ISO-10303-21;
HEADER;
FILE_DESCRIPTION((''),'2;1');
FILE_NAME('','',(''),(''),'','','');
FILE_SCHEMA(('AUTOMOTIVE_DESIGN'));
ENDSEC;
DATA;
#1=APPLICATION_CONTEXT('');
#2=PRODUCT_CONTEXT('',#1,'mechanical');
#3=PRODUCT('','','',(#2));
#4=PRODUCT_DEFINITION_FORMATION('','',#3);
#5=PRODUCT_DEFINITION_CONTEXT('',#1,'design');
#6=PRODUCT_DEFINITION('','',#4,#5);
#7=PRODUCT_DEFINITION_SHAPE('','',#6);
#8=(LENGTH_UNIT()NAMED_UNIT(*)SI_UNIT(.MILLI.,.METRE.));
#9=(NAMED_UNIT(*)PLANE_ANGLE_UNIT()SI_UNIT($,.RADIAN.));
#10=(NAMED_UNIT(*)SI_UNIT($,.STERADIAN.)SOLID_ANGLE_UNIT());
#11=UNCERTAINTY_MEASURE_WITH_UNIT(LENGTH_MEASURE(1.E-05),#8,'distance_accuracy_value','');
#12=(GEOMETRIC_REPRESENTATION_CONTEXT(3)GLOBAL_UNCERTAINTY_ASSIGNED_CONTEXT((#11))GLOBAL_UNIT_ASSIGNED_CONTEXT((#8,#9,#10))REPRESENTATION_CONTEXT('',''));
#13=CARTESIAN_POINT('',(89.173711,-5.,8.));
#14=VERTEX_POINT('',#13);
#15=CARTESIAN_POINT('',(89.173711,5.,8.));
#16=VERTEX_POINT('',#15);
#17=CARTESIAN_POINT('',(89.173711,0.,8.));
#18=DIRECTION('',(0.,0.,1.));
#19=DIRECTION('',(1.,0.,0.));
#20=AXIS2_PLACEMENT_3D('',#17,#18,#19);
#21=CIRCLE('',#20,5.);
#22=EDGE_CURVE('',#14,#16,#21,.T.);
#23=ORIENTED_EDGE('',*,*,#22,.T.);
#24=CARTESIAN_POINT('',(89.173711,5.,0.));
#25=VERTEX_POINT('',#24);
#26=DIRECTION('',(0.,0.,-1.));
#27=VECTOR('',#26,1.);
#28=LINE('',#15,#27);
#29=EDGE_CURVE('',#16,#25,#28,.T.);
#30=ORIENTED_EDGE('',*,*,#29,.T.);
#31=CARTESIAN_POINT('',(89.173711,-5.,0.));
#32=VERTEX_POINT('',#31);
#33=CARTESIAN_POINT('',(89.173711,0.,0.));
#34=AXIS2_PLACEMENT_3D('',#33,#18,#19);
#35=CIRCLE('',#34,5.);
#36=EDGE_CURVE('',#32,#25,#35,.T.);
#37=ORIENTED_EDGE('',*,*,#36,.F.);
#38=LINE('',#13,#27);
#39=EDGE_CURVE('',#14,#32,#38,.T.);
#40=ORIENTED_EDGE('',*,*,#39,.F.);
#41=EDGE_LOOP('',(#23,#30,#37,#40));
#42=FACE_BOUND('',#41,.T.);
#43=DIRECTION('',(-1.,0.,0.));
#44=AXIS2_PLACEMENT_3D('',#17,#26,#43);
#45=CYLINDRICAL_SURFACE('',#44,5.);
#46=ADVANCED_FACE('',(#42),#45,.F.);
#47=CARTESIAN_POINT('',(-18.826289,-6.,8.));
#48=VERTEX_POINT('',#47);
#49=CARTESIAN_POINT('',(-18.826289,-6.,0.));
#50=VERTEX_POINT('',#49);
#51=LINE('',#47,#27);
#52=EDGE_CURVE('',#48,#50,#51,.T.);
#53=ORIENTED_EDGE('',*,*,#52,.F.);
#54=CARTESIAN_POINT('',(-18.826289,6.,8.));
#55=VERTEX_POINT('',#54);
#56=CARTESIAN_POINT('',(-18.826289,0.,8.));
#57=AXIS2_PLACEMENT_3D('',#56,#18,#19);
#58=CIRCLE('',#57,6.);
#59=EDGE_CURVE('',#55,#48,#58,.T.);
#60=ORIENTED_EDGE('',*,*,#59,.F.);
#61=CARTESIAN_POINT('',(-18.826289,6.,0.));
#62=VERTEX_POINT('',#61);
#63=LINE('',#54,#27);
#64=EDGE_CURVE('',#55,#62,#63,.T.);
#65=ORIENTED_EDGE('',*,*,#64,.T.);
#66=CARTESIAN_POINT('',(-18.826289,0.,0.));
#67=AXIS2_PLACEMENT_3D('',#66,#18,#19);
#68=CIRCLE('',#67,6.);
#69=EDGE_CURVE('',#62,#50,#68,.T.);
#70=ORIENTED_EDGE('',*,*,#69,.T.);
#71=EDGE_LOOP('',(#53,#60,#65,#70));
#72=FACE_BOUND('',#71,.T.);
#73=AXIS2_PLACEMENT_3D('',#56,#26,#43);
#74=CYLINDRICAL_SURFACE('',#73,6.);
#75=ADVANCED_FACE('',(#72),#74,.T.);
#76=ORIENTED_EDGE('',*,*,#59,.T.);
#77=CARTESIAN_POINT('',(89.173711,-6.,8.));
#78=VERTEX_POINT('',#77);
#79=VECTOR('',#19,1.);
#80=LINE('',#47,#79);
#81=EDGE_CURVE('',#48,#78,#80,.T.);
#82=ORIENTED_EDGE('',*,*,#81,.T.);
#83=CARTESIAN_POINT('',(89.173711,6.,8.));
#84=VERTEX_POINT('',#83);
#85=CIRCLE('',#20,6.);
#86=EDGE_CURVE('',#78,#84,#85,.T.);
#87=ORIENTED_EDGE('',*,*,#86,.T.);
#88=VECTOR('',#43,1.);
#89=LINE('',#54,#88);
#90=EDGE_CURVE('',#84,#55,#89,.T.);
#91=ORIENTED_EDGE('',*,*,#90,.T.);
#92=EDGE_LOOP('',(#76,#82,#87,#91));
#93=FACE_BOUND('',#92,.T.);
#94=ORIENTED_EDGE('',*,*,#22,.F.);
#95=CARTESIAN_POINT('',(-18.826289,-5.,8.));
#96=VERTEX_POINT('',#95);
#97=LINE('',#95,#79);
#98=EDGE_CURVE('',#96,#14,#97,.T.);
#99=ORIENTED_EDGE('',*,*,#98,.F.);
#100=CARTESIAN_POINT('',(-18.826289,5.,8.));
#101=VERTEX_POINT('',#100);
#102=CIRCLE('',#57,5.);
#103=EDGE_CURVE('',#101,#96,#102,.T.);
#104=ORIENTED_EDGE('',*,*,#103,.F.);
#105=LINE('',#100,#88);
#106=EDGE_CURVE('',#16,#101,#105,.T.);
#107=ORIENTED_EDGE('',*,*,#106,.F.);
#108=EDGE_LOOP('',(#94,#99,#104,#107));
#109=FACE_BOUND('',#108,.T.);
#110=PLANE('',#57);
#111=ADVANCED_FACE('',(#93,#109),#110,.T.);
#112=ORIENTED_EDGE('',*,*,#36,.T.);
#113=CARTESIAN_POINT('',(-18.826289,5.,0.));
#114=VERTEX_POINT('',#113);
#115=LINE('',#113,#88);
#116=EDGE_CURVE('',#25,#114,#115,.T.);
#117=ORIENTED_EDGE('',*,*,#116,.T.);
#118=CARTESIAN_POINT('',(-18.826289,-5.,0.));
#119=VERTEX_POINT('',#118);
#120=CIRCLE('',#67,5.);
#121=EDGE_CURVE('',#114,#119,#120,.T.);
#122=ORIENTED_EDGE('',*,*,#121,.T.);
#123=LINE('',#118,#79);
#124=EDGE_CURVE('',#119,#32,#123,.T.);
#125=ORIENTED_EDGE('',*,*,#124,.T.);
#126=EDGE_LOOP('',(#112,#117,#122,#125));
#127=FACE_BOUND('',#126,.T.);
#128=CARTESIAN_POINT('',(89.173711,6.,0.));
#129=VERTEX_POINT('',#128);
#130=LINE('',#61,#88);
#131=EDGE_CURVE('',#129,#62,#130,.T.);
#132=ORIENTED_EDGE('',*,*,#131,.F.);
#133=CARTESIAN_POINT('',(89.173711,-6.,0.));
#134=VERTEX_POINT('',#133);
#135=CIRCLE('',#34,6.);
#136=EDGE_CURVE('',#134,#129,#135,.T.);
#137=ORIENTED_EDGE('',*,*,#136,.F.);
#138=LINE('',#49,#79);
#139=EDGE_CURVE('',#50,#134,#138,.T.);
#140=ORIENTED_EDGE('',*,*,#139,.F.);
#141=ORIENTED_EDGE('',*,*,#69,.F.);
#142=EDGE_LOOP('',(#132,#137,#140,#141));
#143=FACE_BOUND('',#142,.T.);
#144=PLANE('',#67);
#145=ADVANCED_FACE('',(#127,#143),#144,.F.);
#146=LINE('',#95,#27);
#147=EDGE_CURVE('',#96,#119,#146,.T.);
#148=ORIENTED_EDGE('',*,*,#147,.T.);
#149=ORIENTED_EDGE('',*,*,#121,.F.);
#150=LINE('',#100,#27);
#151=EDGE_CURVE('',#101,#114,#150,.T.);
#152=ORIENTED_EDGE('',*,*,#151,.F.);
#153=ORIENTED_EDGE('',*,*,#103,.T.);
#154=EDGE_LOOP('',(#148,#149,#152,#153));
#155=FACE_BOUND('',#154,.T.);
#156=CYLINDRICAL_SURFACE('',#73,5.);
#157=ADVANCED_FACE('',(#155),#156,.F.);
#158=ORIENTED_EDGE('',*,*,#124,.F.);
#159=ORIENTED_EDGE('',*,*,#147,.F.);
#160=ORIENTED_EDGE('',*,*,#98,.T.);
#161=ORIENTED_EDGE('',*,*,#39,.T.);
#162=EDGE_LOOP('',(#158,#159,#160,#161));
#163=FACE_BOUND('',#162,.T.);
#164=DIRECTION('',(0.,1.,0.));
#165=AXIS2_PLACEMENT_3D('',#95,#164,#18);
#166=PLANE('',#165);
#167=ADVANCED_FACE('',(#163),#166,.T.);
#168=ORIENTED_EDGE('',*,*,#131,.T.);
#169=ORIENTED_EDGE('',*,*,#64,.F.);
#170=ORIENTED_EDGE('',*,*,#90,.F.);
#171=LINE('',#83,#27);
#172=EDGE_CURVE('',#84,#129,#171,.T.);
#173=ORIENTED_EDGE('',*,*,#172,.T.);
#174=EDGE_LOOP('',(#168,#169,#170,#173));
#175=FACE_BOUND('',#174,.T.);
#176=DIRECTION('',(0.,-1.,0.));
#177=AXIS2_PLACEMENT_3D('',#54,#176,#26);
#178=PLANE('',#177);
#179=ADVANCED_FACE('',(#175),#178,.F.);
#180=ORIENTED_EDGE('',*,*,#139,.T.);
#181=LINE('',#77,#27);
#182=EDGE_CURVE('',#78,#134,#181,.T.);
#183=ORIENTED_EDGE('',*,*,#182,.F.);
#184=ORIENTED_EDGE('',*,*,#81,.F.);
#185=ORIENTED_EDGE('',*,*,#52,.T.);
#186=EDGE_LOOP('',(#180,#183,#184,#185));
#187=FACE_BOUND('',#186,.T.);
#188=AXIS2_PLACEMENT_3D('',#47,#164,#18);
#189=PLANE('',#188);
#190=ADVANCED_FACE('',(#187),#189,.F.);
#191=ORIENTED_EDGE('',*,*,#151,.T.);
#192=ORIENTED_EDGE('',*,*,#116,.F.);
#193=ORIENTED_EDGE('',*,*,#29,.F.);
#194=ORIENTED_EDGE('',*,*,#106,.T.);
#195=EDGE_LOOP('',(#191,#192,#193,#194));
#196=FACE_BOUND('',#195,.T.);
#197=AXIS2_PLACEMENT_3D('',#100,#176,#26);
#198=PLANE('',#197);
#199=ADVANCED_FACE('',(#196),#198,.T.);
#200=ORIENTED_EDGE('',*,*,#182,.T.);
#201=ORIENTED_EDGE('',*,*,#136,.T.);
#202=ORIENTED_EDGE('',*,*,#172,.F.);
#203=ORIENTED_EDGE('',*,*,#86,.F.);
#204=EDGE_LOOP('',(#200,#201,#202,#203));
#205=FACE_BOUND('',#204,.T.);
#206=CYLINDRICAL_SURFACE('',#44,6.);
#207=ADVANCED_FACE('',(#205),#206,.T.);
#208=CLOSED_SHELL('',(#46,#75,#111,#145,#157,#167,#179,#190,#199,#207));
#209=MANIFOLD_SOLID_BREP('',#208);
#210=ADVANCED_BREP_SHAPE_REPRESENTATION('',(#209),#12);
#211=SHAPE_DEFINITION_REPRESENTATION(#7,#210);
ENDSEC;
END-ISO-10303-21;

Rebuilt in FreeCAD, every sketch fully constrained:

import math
import FreeCAD as App
import Part
import Sketcher

doc = App.newDocument("Part")
body = doc.addObject("PartDesign::Body", "Body")

# Sketch on XY plane
sketch1 = doc.addObject("Sketcher::SketchObject", "Sketch")
body.addObject(sketch1)
sketch1.AttachmentSupport = (doc.XY_Plane, [""])
sketch1.MapMode = "FlatFace"
sketch1.addGeometry([
    Part.LineSegment(App.Vector(89.173711, 6, 0), App.Vector(-18.826289, 6, 0)),  # 0
    Part.ArcOfCircle(Part.Circle(App.Vector(-18.826289, 0, 0), App.Vector(0, 0, 1), 6), math.radians(90), math.radians(270)),  # 1
    Part.LineSegment(App.Vector(-18.826289, -6, 0), App.Vector(89.173711, -6, 0)),  # 2
    Part.ArcOfCircle(Part.Circle(App.Vector(89.173711, 0, 0), App.Vector(0, 0, 1), 6), math.radians(-90), math.radians(90)),  # 3
    Part.LineSegment(App.Vector(-18.826289, 5, 0), App.Vector(89.173711, 5, 0)),  # 4
    Part.ArcOfCircle(Part.Circle(App.Vector(89.173711, 0, 0), App.Vector(0, 0, 1), 5), math.radians(-90), math.radians(90)),  # 5
    Part.LineSegment(App.Vector(89.173711, -5, 0), App.Vector(-18.826289, -5, 0)),  # 6
    Part.ArcOfCircle(Part.Circle(App.Vector(-18.826289, 0, 0), App.Vector(0, 0, 1), 5), math.radians(90), math.radians(270)),  # 7
], False)
sketch1.addConstraint([
    Sketcher.Constraint("Tangent", 0, 2, 1, 1),
    Sketcher.Constraint("Tangent", 1, 2, 2, 1),
    Sketcher.Constraint("Tangent", 2, 2, 3, 1),
    Sketcher.Constraint("Tangent", 3, 2, 0, 1),
    Sketcher.Constraint("Tangent", 4, 2, 5, 2),
    Sketcher.Constraint("Tangent", 5, 1, 6, 1),
    Sketcher.Constraint("Tangent", 6, 2, 7, 2),
    Sketcher.Constraint("Tangent", 7, 1, 4, 1),
    Sketcher.Constraint("Horizontal", 0),
    Sketcher.Constraint("Horizontal", 2),
    Sketcher.Constraint("Horizontal", 4),
    Sketcher.Constraint("Horizontal", 6),
    Sketcher.Constraint("Coincident", 5, 3, 3, 3),
    Sketcher.Constraint("PointOnObject", 1, 3, -1),
    Sketcher.Constraint("Vertical", 7, 3, 0, 2),
    Sketcher.Constraint("Radius", 1, 6.0),
    Sketcher.Constraint("Radius", 5, 5.0),
    Sketcher.Constraint("DistanceX", 0, 2, 0, 1, 108.0),
    Sketcher.Constraint("DistanceX", 1, 3, -1, 1, 18.826289),
])
pad1 = doc.addObject("PartDesign::Pad", "Pad")
body.addObject(pad1)
pad1.Profile = sketch1
pad1.Length = 8

doc.recompute()
